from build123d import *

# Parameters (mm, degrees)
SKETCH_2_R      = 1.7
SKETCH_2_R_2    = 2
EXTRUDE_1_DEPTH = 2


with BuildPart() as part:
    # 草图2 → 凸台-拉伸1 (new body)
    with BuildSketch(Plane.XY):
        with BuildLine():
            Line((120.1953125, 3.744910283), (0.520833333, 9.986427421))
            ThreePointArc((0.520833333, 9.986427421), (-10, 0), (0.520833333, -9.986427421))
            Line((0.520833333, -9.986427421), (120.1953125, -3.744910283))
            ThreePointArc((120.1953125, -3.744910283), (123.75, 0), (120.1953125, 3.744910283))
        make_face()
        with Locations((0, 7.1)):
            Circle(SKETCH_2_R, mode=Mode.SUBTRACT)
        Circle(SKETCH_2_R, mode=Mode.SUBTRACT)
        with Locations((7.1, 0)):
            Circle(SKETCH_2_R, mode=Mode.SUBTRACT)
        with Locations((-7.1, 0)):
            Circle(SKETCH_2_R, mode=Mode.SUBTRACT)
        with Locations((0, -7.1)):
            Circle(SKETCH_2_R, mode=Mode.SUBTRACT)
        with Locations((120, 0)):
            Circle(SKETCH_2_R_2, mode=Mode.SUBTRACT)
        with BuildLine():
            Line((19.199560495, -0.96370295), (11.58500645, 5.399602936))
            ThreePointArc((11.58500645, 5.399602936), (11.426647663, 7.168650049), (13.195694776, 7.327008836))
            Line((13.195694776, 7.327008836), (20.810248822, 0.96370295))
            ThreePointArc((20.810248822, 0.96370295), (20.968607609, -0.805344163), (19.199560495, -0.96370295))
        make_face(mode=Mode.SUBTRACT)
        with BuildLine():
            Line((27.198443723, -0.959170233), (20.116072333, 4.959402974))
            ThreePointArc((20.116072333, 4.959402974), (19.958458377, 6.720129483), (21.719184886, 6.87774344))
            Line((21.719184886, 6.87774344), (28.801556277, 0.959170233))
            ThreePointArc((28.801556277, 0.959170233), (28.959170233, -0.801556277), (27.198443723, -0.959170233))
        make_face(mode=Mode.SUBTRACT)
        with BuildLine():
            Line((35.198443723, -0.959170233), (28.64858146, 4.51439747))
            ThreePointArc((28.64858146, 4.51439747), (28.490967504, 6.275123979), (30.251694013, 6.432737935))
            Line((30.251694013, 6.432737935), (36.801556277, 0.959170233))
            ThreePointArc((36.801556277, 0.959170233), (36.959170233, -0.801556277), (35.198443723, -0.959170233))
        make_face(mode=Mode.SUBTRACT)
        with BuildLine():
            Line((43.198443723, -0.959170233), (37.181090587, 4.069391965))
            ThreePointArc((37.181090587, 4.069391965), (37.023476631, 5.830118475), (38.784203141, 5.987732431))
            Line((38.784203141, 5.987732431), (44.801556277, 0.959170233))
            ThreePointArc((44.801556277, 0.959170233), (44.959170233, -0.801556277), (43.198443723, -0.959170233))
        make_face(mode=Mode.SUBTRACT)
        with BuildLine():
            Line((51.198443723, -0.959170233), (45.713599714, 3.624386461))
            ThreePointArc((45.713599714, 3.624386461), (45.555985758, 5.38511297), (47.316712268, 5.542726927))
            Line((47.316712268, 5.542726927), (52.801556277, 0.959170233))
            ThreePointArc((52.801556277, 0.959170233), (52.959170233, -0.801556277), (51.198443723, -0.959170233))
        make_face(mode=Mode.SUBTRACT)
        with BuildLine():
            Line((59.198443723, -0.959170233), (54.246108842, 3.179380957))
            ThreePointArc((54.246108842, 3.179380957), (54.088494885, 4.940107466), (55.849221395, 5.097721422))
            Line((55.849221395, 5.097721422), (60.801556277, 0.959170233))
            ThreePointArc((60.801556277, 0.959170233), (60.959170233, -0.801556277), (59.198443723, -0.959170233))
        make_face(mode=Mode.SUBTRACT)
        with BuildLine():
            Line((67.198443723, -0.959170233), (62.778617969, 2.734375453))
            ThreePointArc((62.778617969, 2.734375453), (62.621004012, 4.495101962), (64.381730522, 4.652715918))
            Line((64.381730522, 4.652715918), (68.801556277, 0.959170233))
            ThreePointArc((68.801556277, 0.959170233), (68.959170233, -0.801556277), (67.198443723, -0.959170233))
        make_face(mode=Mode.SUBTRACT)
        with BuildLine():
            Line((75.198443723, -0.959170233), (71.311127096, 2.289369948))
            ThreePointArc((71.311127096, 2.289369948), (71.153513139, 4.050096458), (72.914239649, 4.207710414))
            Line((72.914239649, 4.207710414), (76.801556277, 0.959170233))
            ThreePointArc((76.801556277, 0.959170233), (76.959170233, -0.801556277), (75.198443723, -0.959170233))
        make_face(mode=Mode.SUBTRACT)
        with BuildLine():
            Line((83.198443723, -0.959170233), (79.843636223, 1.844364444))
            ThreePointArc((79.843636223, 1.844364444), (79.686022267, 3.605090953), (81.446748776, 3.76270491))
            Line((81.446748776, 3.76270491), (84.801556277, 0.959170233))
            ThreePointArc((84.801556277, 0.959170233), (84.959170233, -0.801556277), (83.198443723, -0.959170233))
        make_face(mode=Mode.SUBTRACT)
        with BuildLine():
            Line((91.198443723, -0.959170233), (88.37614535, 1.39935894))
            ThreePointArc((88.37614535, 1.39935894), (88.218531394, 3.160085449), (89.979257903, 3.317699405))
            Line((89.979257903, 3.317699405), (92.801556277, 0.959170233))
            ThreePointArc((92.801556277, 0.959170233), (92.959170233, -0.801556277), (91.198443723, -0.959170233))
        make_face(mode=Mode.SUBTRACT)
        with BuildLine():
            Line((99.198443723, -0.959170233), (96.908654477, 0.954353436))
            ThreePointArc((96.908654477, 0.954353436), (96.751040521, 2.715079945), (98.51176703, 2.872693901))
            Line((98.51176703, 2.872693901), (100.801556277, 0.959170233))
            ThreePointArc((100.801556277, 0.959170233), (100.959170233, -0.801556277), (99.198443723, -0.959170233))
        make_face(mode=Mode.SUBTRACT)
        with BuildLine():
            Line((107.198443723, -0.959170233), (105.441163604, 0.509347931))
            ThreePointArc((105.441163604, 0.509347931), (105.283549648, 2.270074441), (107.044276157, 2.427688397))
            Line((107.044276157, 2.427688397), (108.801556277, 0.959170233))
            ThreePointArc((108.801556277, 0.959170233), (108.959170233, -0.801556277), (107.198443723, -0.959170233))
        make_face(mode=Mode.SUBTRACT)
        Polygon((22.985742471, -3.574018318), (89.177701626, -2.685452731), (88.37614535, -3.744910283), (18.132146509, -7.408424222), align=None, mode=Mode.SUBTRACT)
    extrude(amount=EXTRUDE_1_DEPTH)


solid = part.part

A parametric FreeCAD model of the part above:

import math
import FreeCAD as App
import Part
import Sketcher
from FreeCAD import Vector


def add_polygon(sketch, points):
    """Adds a closed chain of lines whose ends are joined by coincident constraints."""
    first, n = sketch.GeometryCount, len(points)
    for a, b in zip(points, points[1:] + points[:1]):
        sketch.addGeometry(Part.LineSegment(App.Vector(*a, 0), App.Vector(*b, 0)), False)
    for i in range(n):
        sketch.addConstraint(Sketcher.Constraint("Coincident", first + i, 2, first + (i + 1) % n, 1))

doc = App.newDocument("Part")
params = doc.addObject("Spreadsheet::Sheet", "Params")
for row, (alias, value) in enumerate([
    ("sketch1_diameter", "4 mm"),
    ("sketch1_radius", "10 mm"),
    ("sketch1_diameter2", "3.4 mm"),
    ("sketch1_radius2", "3.75 mm"),
    ("sketch1_radius3", "1.25 mm"),
    ("pad1_length", "2 mm"),
], start=1):
    params.set(f"A{row}", alias)
    params.set(f"B{row}", "=" + value)
    params.setAlias(f"B{row}", alias)

body = doc.addObject("PartDesign::Body", "Body")

# Sketch on XY plane
sketch1 = body.newObject("Sketcher::SketchObject", "Sketch")
sketch1.AttachmentSupport = (doc.getObject("XY_Plane"), [""])
sketch1.MapMode = "FlatFace"
sketch1.addGeometry(Part.LineSegment(Vector(120.2, 3.7, 0), Vector(0.5, 10, 0)), False)  # 0
sketch1.addGeometry(Part.ArcOfCircle(Part.Circle(Vector(0, 0, 0), Vector(0, 0, 1), 10), math.radians(87), math.radians(273)), False)  # 1
sketch1.addGeometry(Part.LineSegment(Vector(0.5, -10, 0), Vector(120.2, -3.7, 0)), False)  # 2
sketch1.addGeometry(Part.ArcOfCircle(Part.Circle(Vector(120, 0, 0), Vector(0, 0, 1), 3.8), math.radians(-87), math.radians(87)), False)  # 3
sketch1.addGeometry(Part.Circle(Vector(0, -7.1, 0), Vector(0, 0, 1), 1.7), False)  # 4
add_polygon(sketch1, [(18.1, -7.4), (23, -3.6), (89.2, -2.7), (88.4, -3.7)])  # lines 5-8
sketch1.addGeometry(Part.Circle(Vector(-7.1, 0, 0), Vector(0, 0, 1), 1.7), False)  # 9
sketch1.addGeometry(Part.Circle(Vector(0, 0, 0), Vector(0, 0, 1), 1.7), False)  # 10
sketch1.addGeometry(Part.Circle(Vector(7.1, 0, 0), Vector(0, 0, 1), 1.7), False)  # 11
sketch1.addGeometry(Part.ArcOfCircle(Part.Circle(Vector(20, 0, 0), Vector(0, 0, 1), 1.3), math.radians(-130), math.radians(50)), False)  # 12
sketch1.addGeometry(Part.LineSegment(Vector(19.2, -1, 0), Vector(11.6, 5.4, 0)), False)  # 13
sketch1.addGeometry(Part.ArcOfCircle(Part.Circle(Vector(12.4, 6.4, 0), Vector(0, 0, 1), 1.3), math.radians(50), math.radians(230)), False)  # 14
sketch1.addGeometry(Part.LineSegment(Vector(13.2, 7.3, 0), Vector(20.8, 1, 0)), False)  # 15
sketch1.addGeometry(Part.ArcOfCircle(Part.Circle(Vector(28, 0, 0), Vector(0, 0, 1), 1.2), math.radians(-130), math.radians(50)), False)  # 16
sketch1.addGeometry(Part.LineSegment(Vector(27.2, -1, 0), Vector(20.1, 5, 0)), False)  # 17
sketch1.addGeometry(Part.ArcOfCircle(Part.Circle(Vector(20.9, 5.9, 0), Vector(0, 0, 1), 1.2), math.radians(50), math.radians(230)), False)  # 18
sketch1.addGeometry(Part.LineSegment(Vector(21.7, 6.9, 0), Vector(28.8, 1, 0)), False)  # 19
sketch1.addGeometry(Part.ArcOfCircle(Part.Circle(Vector(36, 0, 0), Vector(0, 0, 1), 1.2), math.radians(-130), math.radians(50)), False)  # 20
sketch1.addGeometry(Part.LineSegment(Vector(35.2, -1, 0), Vector(28.6, 4.5, 0)), False)  # 21
sketch1.addGeometry(Part.ArcOfCircle(Part.Circle(Vector(29.5, 5.5, 0), Vector(0, 0, 1), 1.2), math.radians(50), math.radians(230)), False)  # 22
sketch1.addGeometry(Part.LineSegment(Vector(30.3, 6.4, 0), Vector(36.8, 1, 0)), False)  # 23
sketch1.addGeometry(Part.ArcOfCircle(Part.Circle(Vector(44, 0, 0), Vector(0, 0, 1), 1.2), math.radians(-130), math.radians(50)), False)  # 24
sketch1.addGeometry(Part.LineSegment(Vector(43.2, -1, 0), Vector(37.2, 4.1, 0)), False)  # 25
sketch1.addGeometry(Part.ArcOfCircle(Part.Circle(Vector(38, 5, 0), Vector(0, 0, 1), 1.2), math.radians(50), math.radians(230)), False)  # 26
sketch1.addGeometry(Part.LineSegment(Vector(38.8, 6, 0), Vector(44.8, 1, 0)), False)  # 27
sketch1.addGeometry(Part.ArcOfCircle(Part.Circle(Vector(52, 0, 0), Vector(0, 0, 1), 1.2), math.radians(-130), math.radians(50)), False)  # 28
sketch1.addGeometry(Part.LineSegment(Vector(51.2, -1, 0), Vector(45.7, 3.6, 0)), False)  # 29
sketch1.addGeometry(Part.ArcOfCircle(Part.Circle(Vector(46.5, 4.6, 0), Vector(0, 0, 1), 1.2), math.radians(50), math.radians(230)), False)  # 30
sketch1.addGeometry(Part.LineSegment(Vector(47.3, 5.5, 0), Vector(52.8, 1, 0)), False)  # 31
sketch1.addGeometry(Part.Circle(Vector(0, 7.1, 0), Vector(0, 0, 1), 1.7), False)  # 32
sketch1.addGeometry(Part.ArcOfCircle(Part.Circle(Vector(60, 0, 0), Vector(0, 0, 1), 1.2), math.radians(-130), math.radians(50)), False)  # 33
sketch1.addGeometry(Part.LineSegment(Vector(59.2, -1, 0), Vector(54.2, 3.2, 0)), False)  # 34
sketch1.addGeometry(Part.ArcOfCircle(Part.Circle(Vector(55, 4.1, 0), Vector(0, 0, 1), 1.2), math.radians(50), math.radians(230)), False)  # 35
sketch1.addGeometry(Part.LineSegment(Vector(55.8, 5.1, 0), Vector(60.8, 1, 0)), False)  # 36
sketch1.addGeometry(Part.ArcOfCircle(Part.Circle(Vector(68, 0, 0), Vector(0, 0, 1), 1.2), math.radians(-130), math.radians(50)), False)  # 37
sketch1.addGeometry(Part.LineSegment(Vector(67.2, -1, 0), Vector(62.8, 2.7, 0)), False)  # 38
sketch1.addGeometry(Part.ArcOfCircle(Part.Circle(Vector(63.6, 3.7, 0), Vector(0, 0, 1), 1.2), math.radians(50), math.radians(230)), False)  # 39
sketch1.addGeometry(Part.LineSegment(Vector(64.4, 4.7, 0), Vector(68.8, 1, 0)), False)  # 40
sketch1.addGeometry(Part.ArcOfCircle(Part.Circle(Vector(76, 0, 0), Vector(0, 0, 1), 1.2), math.radians(-130), math.radians(50)), False)  # 41
sketch1.addGeometry(Part.LineSegment(Vector(75.2, -1, 0), Vector(71.3, 2.3, 0)), False)  # 42
sketch1.addGeometry(Part.ArcOfCircle(Part.Circle(Vector(72.1, 3.2, 0), Vector(0, 0, 1), 1.2), math.radians(50), math.radians(230)), False)  # 43
sketch1.addGeometry(Part.LineSegment(Vector(72.9, 4.2, 0), Vector(76.8, 1, 0)), False)  # 44
sketch1.addGeometry(Part.ArcOfCircle(Part.Circle(Vector(84, 0, 0), Vector(0, 0, 1), 1.2), math.radians(-130), math.radians(50)), False)  # 45
sketch1.addGeometry(Part.LineSegment(Vector(83.2, -1, 0), Vector(79.8, 1.8, 0)), False)  # 46
sketch1.addGeometry(Part.ArcOfCircle(Part.Circle(Vector(80.6, 2.8, 0), Vector(0, 0, 1), 1.2), math.radians(50), math.radians(230)), False)  # 47
sketch1.addGeometry(Part.LineSegment(Vector(81.4, 3.8, 0), Vector(84.8, 1, 0)), False)  # 48
sketch1.addGeometry(Part.ArcOfCircle(Part.Circle(Vector(100, 0, 0), Vector(0, 0, 1), 1.2), math.radians(-130), math.radians(50)), False)  # 49
sketch1.addGeometry(Part.LineSegment(Vector(99.2, -1, 0), Vector(96.9, 1, 0)), False)  # 50
sketch1.addGeometry(Part.ArcOfCircle(Part.Circle(Vector(97.7, 1.9, 0), Vector(0, 0, 1), 1.2), math.radians(50), math.radians(230)), False)  # 51
sketch1.addGeometry(Part.LineSegment(Vector(98.5, 2.9, 0), Vector(100.8, 1, 0)), False)  # 52
sketch1.addGeometry(Part.ArcOfCircle(Part.Circle(Vector(92, 0, 0), Vector(0, 0, 1), 1.2), math.radians(-130), math.radians(50)), False)  # 53
sketch1.addGeometry(Part.LineSegment(Vector(91.2, -1, 0), Vector(88.4, 1.4, 0)), False)  # 54
sketch1.addGeometry(Part.ArcOfCircle(Part.Circle(Vector(89.2, 2.4, 0), Vector(0, 0, 1), 1.2), math.radians(50), math.radians(230)), False)  # 55
sketch1.addGeometry(Part.LineSegment(Vector(90, 3.3, 0), Vector(92.8, 1, 0)), False)  # 56
sketch1.addGeometry(Part.ArcOfCircle(Part.Circle(Vector(108, 0, 0), Vector(0, 0, 1), 1.2), math.radians(-130), math.radians(50)), False)  # 57
sketch1.addGeometry(Part.LineSegment(Vector(107.2, -1, 0), Vector(105.4, 0.5, 0)), False)  # 58
sketch1.addGeometry(Part.ArcOfCircle(Part.Circle(Vector(106.2, 1.5, 0), Vector(0, 0, 1), 1.2), math.radians(50), math.radians(230)), False)  # 59
sketch1.addGeometry(Part.LineSegment(Vector(107, 2.4, 0), Vector(108.8, 1, 0)), False)  # 60
sketch1.addGeometry(Part.Circle(Vector(120, 0, 0), Vector(0, 0, 1), 2), False)  # 61
sketch1.addConstraint([
    Sketcher.Constraint("Tangent", 0, 2, 1, 1),
    Sketcher.Constraint("Tangent", 1, 2, 2, 1),
    Sketcher.Constraint("Tangent", 2, 2, 3, 1),
    Sketcher.Constraint("Tangent", 3, 2, 0, 1),
    Sketcher.Constraint("Tangent", 12, 1, 13, 1),
    Sketcher.Constraint("Tangent", 13, 2, 14, 2),
    Sketcher.Constraint("Tangent", 14, 1, 15, 1),
    Sketcher.Constraint("Tangent", 15, 2, 12, 2),
    Sketcher.Constraint("Tangent", 16, 1, 17, 1),
    Sketcher.Constraint("Tangent", 17, 2, 18, 2),
    Sketcher.Constraint("Tangent", 18, 1, 19, 1),
    Sketcher.Constraint("Tangent", 19, 2, 16, 2),
    Sketcher.Constraint("Tangent", 20, 1, 21, 1),
    Sketcher.Constraint("Tangent", 21, 2, 22, 2),
    Sketcher.Constraint("Tangent", 22, 1, 23, 1),
    Sketcher.Constraint("Tangent", 23, 2, 20, 2),
    Sketcher.Constraint("Tangent", 24, 1, 25, 1),
    Sketcher.Constraint("Tangent", 25, 2, 26, 2),
    Sketcher.Constraint("Tangent", 26, 1, 27, 1),
    Sketcher.Constraint("Tangent", 27, 2, 24, 2),
    Sketcher.Constraint("Tangent", 28, 1, 29, 1),
    Sketcher.Constraint("Tangent", 29, 2, 30, 2),
    Sketcher.Constraint("Tangent", 30, 1, 31, 1),
    Sketcher.Constraint("Tangent", 31, 2, 28, 2),
    Sketcher.Constraint("Tangent", 33, 1, 34, 1),
    Sketcher.Constraint("Tangent", 34, 2, 35, 2),
    Sketcher.Constraint("Tangent", 35, 1, 36, 1),
    Sketcher.Constraint("Tangent", 36, 2, 33, 2),
    Sketcher.Constraint("Tangent", 37, 1, 38, 1),
    Sketcher.Constraint("Tangent", 38, 2, 39, 2),
    Sketcher.Constraint("Tangent", 39, 1, 40, 1),
    Sketcher.Constraint("Tangent", 40, 2, 37, 2),
    Sketcher.Constraint("Tangent", 41, 1, 42, 1),
    Sketcher.Constraint("Tangent", 42, 2, 43, 2),
    Sketcher.Constraint("Tangent", 43, 1, 44, 1),
    Sketcher.Constraint("Tangent", 44, 2, 41, 2),
    Sketcher.Constraint("Tangent", 45, 1, 46, 1),
    Sketcher.Constraint("Tangent", 46, 2, 47, 2),
    Sketcher.Constraint("Tangent", 47, 1, 48, 1),
    Sketcher.Constraint("Tangent", 48, 2, 45, 2),
    Sketcher.Constraint("Tangent", 49, 1, 50, 1),
    Sketcher.Constraint("Tangent", 50, 2, 51, 2),
    Sketcher.Constraint("Tangent", 51, 1, 52, 1),
    Sketcher.Constraint("Tangent", 52, 2, 49, 2),
    Sketcher.Constraint("Tangent", 53, 1, 54, 1),
    Sketcher.Constraint("Tangent", 54, 2, 55, 2),
    Sketcher.Constraint("Tangent", 55, 1, 56, 1),
    Sketcher.Constraint("Tangent", 56, 2, 53, 2),
    Sketcher.Constraint("Tangent", 57, 1, 58, 1),
    Sketcher.Constraint("Tangent", 58, 2, 59, 2),
    Sketcher.Constraint("Tangent", 59, 1, 60, 1),
    Sketcher.Constraint("Tangent", 60, 2, 57, 2),
    Sketcher.Constraint("Coincident", 1, 3, -1, 1),
    Sketcher.Constraint("Coincident", 10, 3, -1, 1),
    Sketcher.Constraint("Coincident", 61, 3, 3, 3),
    Sketcher.Constraint("Equal", 4, 9),
    Sketcher.Constraint("Equal", 9, 10),
    Sketcher.Constraint("Equal", 10, 11),
    Sketcher.Constraint("Equal", 12, 14),
    Sketcher.Constraint("Equal", 16, 18),
    Sketcher.Constraint("Equal", 18, 20),
    Sketcher.Constraint("Equal", 20, 22),
    Sketcher.Constraint("Equal", 22, 24),
    Sketcher.Constraint("Equal", 24, 26),
    Sketcher.Constraint("Equal", 26, 28),
    Sketcher.Constraint("Equal", 28, 30),
    Sketcher.Constraint("Equal", 11, 32),
    Sketcher.Constraint("Equal", 30, 33),
    Sketcher.Constraint("Equal", 33, 35),
    Sketcher.Constraint("Equal", 35, 37),
    Sketcher.Constraint("Equal", 37, 39),
    Sketcher.Constraint("Equal", 39, 41),
    Sketcher.Constraint("Equal", 41, 43),
    Sketcher.Constraint("Equal", 43, 45),
    Sketcher.Constraint("Equal", 45, 47),
    Sketcher.Constraint("Equal", 47, 49),
    Sketcher.Constraint("Equal", 49, 51),
    Sketcher.Constraint("Equal", 51, 53),
    Sketcher.Constraint("Equal", 53, 55),
    Sketcher.Constraint("Equal", 55, 57),
    Sketcher.Constraint("Equal", 57, 59),
    Sketcher.Constraint("Symmetric", 9, 3, 11, 3, -1, 1),
    Sketcher.Constraint("Symmetric", 4, 3, 32, 3, -1, 1),
    Sketcher.Constraint("PointOnObject", 3, 3, -1),
    Sketcher.Constraint("PointOnObject", 4, 3, -2),
    Sketcher.Constraint("PointOnObject", 9, 3, -1),
    Sketcher.Constraint("PointOnObject", 12, 3, -1),
    Sketcher.Constraint("PointOnObject", 16, 3, -1),
    Sketcher.Constraint("PointOnObject", 20, 3, -1),
    Sketcher.Constraint("PointOnObject", 24, 3, -1),
    Sketcher.Constraint("PointOnObject", 28, 3, -1),
    Sketcher.Constraint("PointOnObject", 33, 3, -1),
    Sketcher.Constraint("PointOnObject", 37, 3, -1),
    Sketcher.Constraint("PointOnObject", 41, 3, -1),
    Sketcher.Constraint("PointOnObject", 45, 3, -1),
    Sketcher.Constraint("PointOnObject", 49, 3, -1),
    Sketcher.Constraint("PointOnObject", 53, 3, -1),
    Sketcher.Constraint("PointOnObject", 57, 3, -1),
    Sketcher.Constraint("Parallel", 2, 8),
    Sketcher.Constraint("Parallel", 15, 17),
    Sketcher.Constraint("Parallel", 19, 21),
    Sketcher.Constraint("Parallel", 23, 25),
    Sketcher.Constraint("Parallel", 27, 29),
    Sketcher.Constraint("Parallel", 31, 34),
    Sketcher.Constraint("Parallel", 36, 38),
    Sketcher.Constraint("Parallel", 40, 42),
    Sketcher.Constraint("Parallel", 44, 46),
    Sketcher.Constraint("Parallel", 48, 50),
    Sketcher.Constraint("Parallel", 52, 54),
    Sketcher.Constraint("Parallel", 56, 58),
    Sketcher.Constraint("Horizontal", 2, 2, 7, 2),
    Sketcher.Constraint("Vertical", 55, 3, 6, 2),
    Sketcher.Constraint("Vertical", 7, 2, 54, 2),
    Sketcher.Constraint("Diameter", 61, 4.0),
    Sketcher.Constraint("Radius", 1, 10.0),
    Sketcher.Constraint("Diameter", 4, 3.4),
    Sketcher.Constraint("Radius", 3, 3.75),
    Sketcher.Constraint("Radius", 16, 1.25),
    Sketcher.Constraint("DistanceX", -1, 1, 3, 3, 120.0),
    Sketcher.Constraint("DistanceX", -1, 1, 16, 3, 28.0),
    Sketcher.Constraint("DistanceX", -1, 1, 20, 3, 36.0),
    Sketcher.Constraint("DistanceX", -1, 1, 24, 3, 44.0),
    Sketcher.Constraint("DistanceX", -1, 1, 28, 3, 52.0),
    Sketcher.Constraint("DistanceX", -1, 1, 33, 3, 60.0),
    Sketcher.Constraint("DistanceX", -1, 1, 37, 3, 68.0),
    Sketcher.Constraint("DistanceX", -1, 1, 41, 3, 76.0),
    Sketcher.Constraint("DistanceX", -1, 1, 45, 3, 84.0),
    Sketcher.Constraint("DistanceX", -1, 1, 49, 3, 100.0),
    Sketcher.Constraint("DistanceX", -1, 1, 53, 3, 92.0),
    Sketcher.Constraint("DistanceX", -1, 1, 57, 3, 108.0),
    Sketcher.Constraint("DistanceY", 4, 3, -1, 1, 7.1),
    Sketcher.Constraint("DistanceX", 9, 3, -1, 1, 7.1),
    Sketcher.Constraint("Radius", 12, 1.255907),
    Sketcher.Constraint("DistanceX", -1, 1, 55, 3, 89.177702),
    Sketcher.Constraint("DistanceX", -1, 1, 29, 2, 45.7136),
    Sketcher.Constraint("DistanceY", -1, 1, 55, 1, 3.317699),
    Sketcher.Constraint("Distance", 5, 6.185472),
    Sketcher.Constraint("Distance", 7, 1.328511),
    Sketcher.Constraint("Distance", 13, 9.923361),
    Sketcher.Constraint("Distance", 34, 6.453931),
    Sketcher.Constraint("Distance", 38, 5.75996),
    Sketcher.Constraint("Distance", 42, 5.065989),
    Sketcher.Constraint("DistanceX", -1, 1, 14, 3, 12.390351),
    Sketcher.Constraint("DistanceX", -1, 1, 18, 3, 20.917629),
    Sketcher.Constraint("DistanceX", -1, 1, 51, 3, 97.710211),
    Sketcher.Constraint("DistanceX", -1, 1, 59, 3, 106.24272),
    Sketcher.Constraint("DistanceY", 5, 2, -1, 1, 3.574018),
    Sketcher.Constraint("DistanceX", -1, 1, 21, 2, 28.648581),
    Sketcher.Constraint("DistanceX", -1, 1, 25, 2, 37.181091),
    Sketcher.Constraint("DistanceX", -1, 1, 47, 1, 81.446749),
    Sketcher.Constraint("Distance", 6, 66.197923),
])
sketch1.setExpression("Constraints[117]", "Params.sketch1_diameter")
sketch1.setExpression("Constraints[118]", "Params.sketch1_radius")
sketch1.setExpression("Constraints[119]", "Params.sketch1_diameter2")
sketch1.setExpression("Constraints[120]", "Params.sketch1_radius2")
sketch1.setExpression("Constraints[121]", "Params.sketch1_radius3")
pad1 = body.newObject("PartDesign::Pad", "Pad")
pad1.Profile = sketch1
pad1.setExpression("Length", "Params.pad1_length")

doc.recompute()
